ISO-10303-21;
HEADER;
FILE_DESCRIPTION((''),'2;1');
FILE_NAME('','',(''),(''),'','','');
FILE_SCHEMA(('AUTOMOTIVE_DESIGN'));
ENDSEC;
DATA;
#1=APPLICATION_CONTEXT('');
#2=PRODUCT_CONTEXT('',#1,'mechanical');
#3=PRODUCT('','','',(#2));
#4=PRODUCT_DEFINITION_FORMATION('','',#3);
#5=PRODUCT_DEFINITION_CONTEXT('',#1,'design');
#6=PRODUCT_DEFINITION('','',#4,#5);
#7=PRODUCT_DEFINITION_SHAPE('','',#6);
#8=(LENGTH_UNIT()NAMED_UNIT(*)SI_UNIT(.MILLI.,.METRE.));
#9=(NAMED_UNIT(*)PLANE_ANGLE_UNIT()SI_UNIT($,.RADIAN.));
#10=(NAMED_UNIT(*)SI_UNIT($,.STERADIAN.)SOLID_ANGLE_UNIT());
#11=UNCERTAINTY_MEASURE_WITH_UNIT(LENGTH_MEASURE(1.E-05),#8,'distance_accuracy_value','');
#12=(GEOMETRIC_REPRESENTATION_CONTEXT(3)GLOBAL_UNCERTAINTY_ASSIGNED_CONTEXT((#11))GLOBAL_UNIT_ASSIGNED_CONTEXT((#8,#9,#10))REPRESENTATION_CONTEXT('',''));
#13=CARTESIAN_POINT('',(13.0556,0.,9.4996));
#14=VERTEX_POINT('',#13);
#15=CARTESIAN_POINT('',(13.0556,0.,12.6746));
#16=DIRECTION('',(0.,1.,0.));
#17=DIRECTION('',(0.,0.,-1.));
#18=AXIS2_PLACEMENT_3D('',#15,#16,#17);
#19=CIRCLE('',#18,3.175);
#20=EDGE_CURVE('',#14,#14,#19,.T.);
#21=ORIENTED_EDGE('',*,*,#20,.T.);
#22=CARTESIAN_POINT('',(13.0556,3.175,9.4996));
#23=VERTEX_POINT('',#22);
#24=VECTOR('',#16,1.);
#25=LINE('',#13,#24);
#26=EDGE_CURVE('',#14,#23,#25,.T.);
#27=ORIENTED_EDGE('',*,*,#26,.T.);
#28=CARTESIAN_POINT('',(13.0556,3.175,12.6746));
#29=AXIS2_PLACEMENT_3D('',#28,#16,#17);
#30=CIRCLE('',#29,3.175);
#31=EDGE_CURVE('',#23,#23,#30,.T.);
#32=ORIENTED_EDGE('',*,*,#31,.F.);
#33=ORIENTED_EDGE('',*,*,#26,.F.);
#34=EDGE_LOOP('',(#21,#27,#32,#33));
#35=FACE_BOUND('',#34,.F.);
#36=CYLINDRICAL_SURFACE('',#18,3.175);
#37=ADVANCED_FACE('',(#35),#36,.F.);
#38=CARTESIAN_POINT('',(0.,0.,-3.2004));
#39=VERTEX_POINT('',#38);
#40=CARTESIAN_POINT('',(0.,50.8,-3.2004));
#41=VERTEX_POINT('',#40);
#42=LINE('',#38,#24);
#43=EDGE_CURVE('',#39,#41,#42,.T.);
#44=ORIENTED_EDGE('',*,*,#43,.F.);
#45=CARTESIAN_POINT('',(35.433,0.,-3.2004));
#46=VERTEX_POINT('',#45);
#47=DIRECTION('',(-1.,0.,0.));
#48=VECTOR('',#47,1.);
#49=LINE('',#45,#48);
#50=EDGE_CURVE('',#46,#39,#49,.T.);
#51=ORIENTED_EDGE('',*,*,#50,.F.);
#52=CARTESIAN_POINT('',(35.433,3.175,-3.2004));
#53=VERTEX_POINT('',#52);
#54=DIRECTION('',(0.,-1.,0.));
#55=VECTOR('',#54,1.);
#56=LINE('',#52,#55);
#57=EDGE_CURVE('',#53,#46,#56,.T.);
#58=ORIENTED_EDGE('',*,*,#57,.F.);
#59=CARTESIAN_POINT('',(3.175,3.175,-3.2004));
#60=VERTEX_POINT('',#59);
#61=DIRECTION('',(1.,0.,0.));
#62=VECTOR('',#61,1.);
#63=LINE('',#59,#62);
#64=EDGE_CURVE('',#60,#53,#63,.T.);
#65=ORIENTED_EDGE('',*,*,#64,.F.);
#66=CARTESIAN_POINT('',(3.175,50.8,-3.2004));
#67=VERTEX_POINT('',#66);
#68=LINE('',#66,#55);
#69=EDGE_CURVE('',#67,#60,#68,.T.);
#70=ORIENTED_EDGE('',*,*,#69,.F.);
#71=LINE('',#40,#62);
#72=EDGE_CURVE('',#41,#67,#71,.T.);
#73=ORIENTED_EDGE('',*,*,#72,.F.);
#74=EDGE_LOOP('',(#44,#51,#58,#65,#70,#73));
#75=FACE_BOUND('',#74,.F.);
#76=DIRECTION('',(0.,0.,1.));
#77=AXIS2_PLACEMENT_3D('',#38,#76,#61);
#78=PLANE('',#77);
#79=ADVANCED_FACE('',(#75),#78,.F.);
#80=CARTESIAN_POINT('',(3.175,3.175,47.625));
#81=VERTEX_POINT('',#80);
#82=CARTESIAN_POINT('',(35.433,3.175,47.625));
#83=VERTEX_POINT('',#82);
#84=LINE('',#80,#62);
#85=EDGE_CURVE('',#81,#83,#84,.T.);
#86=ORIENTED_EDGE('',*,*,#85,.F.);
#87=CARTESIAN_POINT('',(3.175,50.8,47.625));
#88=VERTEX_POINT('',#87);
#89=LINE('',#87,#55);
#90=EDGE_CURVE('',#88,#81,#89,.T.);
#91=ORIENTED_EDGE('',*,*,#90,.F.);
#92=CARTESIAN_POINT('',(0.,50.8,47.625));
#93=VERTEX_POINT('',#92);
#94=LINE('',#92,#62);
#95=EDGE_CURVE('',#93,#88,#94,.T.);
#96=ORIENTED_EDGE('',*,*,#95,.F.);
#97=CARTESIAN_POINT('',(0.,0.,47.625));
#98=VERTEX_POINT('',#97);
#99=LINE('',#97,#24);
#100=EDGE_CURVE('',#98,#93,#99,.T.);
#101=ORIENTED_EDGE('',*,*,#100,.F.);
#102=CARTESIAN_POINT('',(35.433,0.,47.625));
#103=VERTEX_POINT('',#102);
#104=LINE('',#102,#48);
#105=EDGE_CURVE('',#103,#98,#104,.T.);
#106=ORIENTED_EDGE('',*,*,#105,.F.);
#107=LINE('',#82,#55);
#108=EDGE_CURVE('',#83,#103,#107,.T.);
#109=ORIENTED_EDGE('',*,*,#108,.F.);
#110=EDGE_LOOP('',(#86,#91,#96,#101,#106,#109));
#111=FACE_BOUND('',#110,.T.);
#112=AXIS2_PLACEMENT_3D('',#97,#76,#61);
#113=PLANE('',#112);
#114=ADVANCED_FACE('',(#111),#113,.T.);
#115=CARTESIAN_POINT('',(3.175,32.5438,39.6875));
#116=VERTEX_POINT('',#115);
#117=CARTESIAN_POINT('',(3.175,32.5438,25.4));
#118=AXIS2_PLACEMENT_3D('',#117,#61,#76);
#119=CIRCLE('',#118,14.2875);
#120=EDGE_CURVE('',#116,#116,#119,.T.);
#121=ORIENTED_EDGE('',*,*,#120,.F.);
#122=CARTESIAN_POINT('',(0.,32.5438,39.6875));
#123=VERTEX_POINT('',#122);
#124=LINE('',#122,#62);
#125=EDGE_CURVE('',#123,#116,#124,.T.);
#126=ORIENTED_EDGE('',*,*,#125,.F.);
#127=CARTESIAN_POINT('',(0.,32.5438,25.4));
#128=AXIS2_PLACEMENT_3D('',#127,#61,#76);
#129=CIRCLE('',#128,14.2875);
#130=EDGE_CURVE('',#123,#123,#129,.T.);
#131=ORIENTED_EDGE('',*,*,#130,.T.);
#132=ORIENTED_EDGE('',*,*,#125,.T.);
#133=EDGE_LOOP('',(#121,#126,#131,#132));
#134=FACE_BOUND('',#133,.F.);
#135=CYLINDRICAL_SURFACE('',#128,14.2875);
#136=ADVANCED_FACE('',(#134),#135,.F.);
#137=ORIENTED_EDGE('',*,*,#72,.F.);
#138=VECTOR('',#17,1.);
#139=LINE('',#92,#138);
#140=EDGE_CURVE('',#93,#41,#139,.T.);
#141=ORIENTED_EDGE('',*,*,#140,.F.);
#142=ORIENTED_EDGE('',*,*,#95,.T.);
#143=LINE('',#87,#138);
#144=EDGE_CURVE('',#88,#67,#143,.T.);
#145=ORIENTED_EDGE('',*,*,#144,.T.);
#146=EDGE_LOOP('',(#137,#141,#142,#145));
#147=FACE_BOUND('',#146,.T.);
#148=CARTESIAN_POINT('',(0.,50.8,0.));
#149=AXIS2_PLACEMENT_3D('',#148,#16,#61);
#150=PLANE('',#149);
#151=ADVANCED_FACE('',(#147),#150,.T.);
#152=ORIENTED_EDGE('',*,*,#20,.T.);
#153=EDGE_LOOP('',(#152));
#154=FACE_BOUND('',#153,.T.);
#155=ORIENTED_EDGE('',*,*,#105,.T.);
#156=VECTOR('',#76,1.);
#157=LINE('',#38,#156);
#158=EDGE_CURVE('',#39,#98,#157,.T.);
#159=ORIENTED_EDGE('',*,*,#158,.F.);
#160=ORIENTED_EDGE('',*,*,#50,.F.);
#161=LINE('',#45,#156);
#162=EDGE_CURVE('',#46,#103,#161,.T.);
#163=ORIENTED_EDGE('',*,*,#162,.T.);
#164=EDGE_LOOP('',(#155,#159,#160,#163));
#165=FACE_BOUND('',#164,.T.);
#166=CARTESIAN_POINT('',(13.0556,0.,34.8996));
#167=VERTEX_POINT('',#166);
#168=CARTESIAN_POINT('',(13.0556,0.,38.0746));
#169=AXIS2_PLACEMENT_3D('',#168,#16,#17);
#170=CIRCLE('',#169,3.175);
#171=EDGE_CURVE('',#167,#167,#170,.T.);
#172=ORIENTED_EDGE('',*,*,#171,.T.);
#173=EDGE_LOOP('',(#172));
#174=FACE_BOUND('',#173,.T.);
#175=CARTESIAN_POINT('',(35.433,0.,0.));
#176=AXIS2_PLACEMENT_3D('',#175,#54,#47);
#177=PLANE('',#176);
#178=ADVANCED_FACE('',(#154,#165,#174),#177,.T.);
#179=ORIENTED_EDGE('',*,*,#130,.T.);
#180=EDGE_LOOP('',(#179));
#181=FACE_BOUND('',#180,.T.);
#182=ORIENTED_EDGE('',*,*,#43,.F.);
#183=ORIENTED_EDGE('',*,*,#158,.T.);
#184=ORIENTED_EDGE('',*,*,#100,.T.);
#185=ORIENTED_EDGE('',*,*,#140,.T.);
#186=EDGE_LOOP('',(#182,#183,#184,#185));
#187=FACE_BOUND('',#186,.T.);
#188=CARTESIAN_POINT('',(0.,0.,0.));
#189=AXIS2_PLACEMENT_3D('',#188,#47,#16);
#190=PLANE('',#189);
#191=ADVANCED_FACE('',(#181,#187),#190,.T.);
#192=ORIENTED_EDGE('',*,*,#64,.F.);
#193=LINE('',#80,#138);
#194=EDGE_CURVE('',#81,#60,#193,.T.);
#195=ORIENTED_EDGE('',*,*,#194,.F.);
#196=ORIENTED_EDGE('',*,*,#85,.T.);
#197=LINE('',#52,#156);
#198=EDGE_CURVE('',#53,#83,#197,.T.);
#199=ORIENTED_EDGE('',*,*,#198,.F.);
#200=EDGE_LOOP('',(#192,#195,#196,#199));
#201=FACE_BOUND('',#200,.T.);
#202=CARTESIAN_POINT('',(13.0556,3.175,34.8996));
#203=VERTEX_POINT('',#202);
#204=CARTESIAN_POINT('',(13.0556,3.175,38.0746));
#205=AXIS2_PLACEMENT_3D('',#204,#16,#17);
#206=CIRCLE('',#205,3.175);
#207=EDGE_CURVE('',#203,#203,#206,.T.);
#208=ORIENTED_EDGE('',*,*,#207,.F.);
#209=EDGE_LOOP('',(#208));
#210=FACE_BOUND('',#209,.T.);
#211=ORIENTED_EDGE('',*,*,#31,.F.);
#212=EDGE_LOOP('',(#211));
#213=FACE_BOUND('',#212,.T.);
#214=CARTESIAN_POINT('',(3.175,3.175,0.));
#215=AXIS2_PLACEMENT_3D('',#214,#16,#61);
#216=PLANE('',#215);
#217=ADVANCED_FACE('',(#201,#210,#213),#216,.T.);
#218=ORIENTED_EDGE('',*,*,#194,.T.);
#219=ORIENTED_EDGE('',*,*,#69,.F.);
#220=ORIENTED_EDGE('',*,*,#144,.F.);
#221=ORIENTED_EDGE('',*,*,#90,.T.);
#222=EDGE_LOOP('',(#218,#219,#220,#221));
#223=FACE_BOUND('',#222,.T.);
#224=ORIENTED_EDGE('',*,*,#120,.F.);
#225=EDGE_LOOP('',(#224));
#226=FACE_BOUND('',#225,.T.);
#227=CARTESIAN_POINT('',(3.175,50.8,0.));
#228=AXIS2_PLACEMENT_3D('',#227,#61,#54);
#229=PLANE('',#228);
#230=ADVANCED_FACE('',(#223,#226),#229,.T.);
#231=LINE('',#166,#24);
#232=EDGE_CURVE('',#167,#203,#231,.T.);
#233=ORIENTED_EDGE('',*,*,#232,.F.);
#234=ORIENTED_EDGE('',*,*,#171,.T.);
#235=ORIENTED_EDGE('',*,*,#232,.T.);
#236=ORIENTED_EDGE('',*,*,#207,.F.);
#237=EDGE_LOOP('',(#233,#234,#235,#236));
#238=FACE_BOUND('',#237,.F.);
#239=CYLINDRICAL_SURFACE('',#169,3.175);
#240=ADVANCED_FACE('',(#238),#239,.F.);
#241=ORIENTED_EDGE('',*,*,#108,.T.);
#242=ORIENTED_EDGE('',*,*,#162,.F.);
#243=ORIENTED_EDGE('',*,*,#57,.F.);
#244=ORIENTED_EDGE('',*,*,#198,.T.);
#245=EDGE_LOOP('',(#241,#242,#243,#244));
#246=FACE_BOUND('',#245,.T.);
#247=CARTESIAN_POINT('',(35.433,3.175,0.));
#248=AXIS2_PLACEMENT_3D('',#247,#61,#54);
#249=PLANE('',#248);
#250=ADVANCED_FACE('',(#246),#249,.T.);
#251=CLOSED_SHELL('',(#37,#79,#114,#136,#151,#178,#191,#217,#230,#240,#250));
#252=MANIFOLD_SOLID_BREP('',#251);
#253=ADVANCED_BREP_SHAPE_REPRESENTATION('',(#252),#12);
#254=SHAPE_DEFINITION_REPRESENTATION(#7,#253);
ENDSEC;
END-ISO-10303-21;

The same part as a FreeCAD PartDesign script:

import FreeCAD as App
import Part
import Sketcher
Q = App.Units.Quantity


def add_polygon(sketch, points):
    """Adds a closed chain of lines whose ends are joined by coincident constraints."""
    first, n = sketch.GeometryCount, len(points)
    for a, b in zip(points, points[1:] + points[:1]):
        sketch.addGeometry(Part.LineSegment(App.Vector(*a, 0), App.Vector(*b, 0)), False)
    for i in range(n):
        sketch.addConstraint(Sketcher.Constraint("Coincident", first + i, 2, first + (i + 1) % n, 1))

doc = App.newDocument("Part")
body = doc.addObject("PartDesign::Body", "Body")

# Sketch on XY plane
sketch1 = body.newObject("Sketcher::SketchObject", "Sketch")
sketch1.AttachmentSupport = (doc.getObject("XY_Plane"), [""])
sketch1.MapMode = "FlatFace"
add_polygon(sketch1, [(0, 50.8), (0, 0), (35.433, 0), (35.433, 3.175), (3.175, 3.175), (3.175, 50.8)])  # lines 0-5
sketch1.addConstraint(Sketcher.Constraint("Vertical", 0))
sketch1.addConstraint(Sketcher.Constraint("Horizontal", 1))
sketch1.addConstraint(Sketcher.Constraint("Vertical", 2))
sketch1.addConstraint(Sketcher.Constraint("Horizontal", 3))
sketch1.addConstraint(Sketcher.Constraint("Vertical", 4))
sketch1.addConstraint(Sketcher.Constraint("Horizontal", 5))
sketch1.addConstraint(Sketcher.Constraint("Coincident", 0, 2, -1, 1))
sketch1.addConstraint(Sketcher.Constraint("Equal", 5, 2))
sketch1.addConstraint(Sketcher.Constraint("DistanceY", 0, 2, 0, 1, Q("2 in")))
sketch1.addConstraint(Sketcher.Constraint("DistanceX", 1, 1, 1, 2, Q("1.395 in")))
sketch1.addConstraint(Sketcher.Constraint("DistanceX", 5, 2, 5, 1, Q("0.125 in")))
pad1 = body.newObject("PartDesign::Pad", "Pad")
pad1.Profile = sketch1
pad1.Type = "TwoLengths"
pad1.Length = Q("1.875 in")
pad1.Length2 = Q("0.126 in")

# Sketch on YZ plane
sketch2 = body.newObject("Sketcher::SketchObject", "Sketch001")
sketch2.AttachmentSupport = (doc.getObject("YZ_Plane"), [""])
sketch2.MapMode = "FlatFace"
sketch2.addGeometry(Part.Circle(App.Vector(32.5438, 25.4, 0), App.Vector(0, 0, 1), 14.2875), False)
sketch2.addConstraint(Sketcher.Constraint("Diameter", 0, Q("1.125 in")))
sketch2.addConstraint(Sketcher.Constraint("DistanceY", -1, 1, 0, 3, Q("1 in")))
sketch2.addConstraint(Sketcher.Constraint("DistanceX", -1, 1, 0, 3, Q("1.281252 in")))
doc.recompute()
hole = body.newObject("PartDesign::Hole", "Hole")
hole.Profile = sketch2
hole.ThreadType = "None"
hole.Diameter = Q("1.125 in")
hole.DepthType = "ThroughAll"
hole.Reversed = True

# Sketch on XZ plane
sketch3 = body.newObject("Sketcher::SketchObject", "Sketch002")
sketch3.AttachmentSupport = (doc.getObject("XZ_Plane"), [""])
sketch3.MapMode = "FlatFace"
sketch3.addGeometry(Part.Circle(App.Vector(13.0556, 12.6746, 0), App.Vector(0, 0, 1), 3.175), False)
sketch3.addGeometry(Part.Circle(App.Vector(13.0556, 38.0746, 0), App.Vector(0, 0, 1), 3.175), False)
sketch3.addConstraint(Sketcher.Constraint("Equal", 0, 1))
sketch3.addConstraint(Sketcher.Constraint("Vertical", 0, 3, 1, 3))
sketch3.addConstraint(Sketcher.Constraint("Diameter", 0, Q("0.25 in")))
sketch3.addConstraint(Sketcher.Constraint("DistanceY", 0, 3, 1, 3, Q("1 in")))
sketch3.addConstraint(Sketcher.Constraint("DistanceX", -1, 1, 0, 3, Q("0.514 in")))
sketch3.addConstraint(Sketcher.Constraint("DistanceY", -1, 1, 0, 3, Q("0.499 in")))
doc.recompute()
hole2 = body.newObject("PartDesign::Hole", "Hole001")
hole2.Profile = sketch3
hole2.ThreadType = "None"
hole2.Diameter = Q("0.25 in")
hole2.DepthType = "ThroughAll"

doc.recompute()
